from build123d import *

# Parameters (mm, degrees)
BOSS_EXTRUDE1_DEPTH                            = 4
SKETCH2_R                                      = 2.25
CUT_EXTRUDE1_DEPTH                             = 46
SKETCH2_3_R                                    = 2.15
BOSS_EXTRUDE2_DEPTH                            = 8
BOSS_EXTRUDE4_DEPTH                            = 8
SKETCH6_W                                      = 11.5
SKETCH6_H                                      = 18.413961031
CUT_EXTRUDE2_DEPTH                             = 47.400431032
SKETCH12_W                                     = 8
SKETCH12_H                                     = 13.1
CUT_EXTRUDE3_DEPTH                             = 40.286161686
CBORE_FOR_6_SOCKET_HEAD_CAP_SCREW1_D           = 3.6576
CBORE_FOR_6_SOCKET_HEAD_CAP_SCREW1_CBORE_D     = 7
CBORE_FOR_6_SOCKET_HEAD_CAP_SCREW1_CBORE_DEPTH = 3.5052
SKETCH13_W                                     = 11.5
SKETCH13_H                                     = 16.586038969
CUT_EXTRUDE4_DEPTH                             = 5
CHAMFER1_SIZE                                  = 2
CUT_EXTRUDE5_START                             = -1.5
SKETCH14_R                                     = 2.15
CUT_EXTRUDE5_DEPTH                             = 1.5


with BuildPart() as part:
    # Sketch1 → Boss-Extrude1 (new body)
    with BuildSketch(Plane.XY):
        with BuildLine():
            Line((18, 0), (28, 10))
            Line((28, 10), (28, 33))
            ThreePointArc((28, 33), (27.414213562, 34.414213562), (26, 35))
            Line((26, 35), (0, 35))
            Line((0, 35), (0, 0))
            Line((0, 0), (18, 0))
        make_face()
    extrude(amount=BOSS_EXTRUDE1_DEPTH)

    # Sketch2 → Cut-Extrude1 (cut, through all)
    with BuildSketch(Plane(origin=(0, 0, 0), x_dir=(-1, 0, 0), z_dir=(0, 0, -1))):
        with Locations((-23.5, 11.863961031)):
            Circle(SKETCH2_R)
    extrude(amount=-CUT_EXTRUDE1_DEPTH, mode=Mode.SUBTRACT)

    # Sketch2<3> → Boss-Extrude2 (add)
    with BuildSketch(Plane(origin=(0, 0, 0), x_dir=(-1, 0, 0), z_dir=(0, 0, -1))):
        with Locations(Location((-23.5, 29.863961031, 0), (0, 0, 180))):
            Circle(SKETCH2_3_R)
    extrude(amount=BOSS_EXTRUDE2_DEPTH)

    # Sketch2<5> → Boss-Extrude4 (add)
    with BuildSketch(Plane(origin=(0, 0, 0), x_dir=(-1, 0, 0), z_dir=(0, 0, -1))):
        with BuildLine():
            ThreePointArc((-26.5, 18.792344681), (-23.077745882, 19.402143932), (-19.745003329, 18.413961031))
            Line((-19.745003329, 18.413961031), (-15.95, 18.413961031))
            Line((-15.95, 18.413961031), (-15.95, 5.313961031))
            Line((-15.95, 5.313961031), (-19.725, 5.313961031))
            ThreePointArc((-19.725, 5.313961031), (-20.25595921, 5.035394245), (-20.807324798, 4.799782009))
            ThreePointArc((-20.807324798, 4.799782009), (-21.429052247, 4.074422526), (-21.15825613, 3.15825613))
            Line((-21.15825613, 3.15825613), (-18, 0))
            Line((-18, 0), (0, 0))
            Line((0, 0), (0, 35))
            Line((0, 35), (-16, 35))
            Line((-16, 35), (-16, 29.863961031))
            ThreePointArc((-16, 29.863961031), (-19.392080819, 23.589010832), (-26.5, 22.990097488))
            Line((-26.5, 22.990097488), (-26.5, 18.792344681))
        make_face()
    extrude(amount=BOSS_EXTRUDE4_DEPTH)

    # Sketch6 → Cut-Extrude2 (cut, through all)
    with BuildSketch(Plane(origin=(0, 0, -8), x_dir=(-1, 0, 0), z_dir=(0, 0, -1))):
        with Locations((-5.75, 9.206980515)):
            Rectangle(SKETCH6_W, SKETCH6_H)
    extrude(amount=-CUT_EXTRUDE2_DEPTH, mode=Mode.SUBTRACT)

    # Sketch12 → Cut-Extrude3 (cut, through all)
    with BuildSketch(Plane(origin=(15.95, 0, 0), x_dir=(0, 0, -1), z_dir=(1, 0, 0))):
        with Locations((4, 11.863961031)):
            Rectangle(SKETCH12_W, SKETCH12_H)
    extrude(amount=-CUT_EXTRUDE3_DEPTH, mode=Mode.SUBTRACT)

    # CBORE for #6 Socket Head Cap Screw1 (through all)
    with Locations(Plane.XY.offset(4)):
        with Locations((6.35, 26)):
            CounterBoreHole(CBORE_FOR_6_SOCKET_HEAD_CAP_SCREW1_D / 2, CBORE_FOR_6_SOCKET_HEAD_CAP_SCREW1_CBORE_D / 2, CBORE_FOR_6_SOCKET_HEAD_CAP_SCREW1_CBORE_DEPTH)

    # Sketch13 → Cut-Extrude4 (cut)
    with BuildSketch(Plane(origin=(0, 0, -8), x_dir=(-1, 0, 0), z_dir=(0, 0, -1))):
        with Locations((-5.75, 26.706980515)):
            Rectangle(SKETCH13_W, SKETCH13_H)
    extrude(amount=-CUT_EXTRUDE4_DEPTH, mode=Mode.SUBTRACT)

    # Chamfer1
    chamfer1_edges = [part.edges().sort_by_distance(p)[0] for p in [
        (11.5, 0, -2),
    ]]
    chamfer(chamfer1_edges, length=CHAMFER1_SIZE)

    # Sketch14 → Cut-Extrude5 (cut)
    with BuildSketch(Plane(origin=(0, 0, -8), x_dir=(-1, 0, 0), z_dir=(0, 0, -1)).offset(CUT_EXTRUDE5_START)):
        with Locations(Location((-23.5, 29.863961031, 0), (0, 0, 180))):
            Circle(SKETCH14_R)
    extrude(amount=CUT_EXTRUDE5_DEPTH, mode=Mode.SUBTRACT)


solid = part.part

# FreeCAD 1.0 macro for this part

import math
import FreeCAD as App
import Part
import Sketcher
Q = App.Units.Quantity


def edges_at(feature, points):
    """Names of the edges that pass closest to the given points."""
    edges = feature.Shape.Edges
    near = lambda p: min(range(len(edges)), key=lambda i: edges[i].distToShape(Part.Vertex(*p))[0])
    return sorted({f"Edge{near(p) + 1}" for p in points})


def add_polygon(sketch, points):
    """Adds a closed chain of lines whose ends are joined by coincident constraints."""
    first, n = sketch.GeometryCount, len(points)
    for a, b in zip(points, points[1:] + points[:1]):
        sketch.addGeometry(Part.LineSegment(App.Vector(*a, 0), App.Vector(*b, 0)), False)
    for i in range(n):
        sketch.addConstraint(Sketcher.Constraint("Coincident", first + i, 2, first + (i + 1) % n, 1))

doc = App.newDocument("Part")
body = doc.addObject("PartDesign::Body", "Body")

sketch1 = body.newObject("Sketcher::SketchObject", "Sketch")
sketch1.AttachmentSupport = (doc.getObject("XY_Plane"), [""])
sketch1.MapMode = "FlatFace"
sketch1.addGeometry(Part.LineSegment(App.Vector(18, 0, 0), App.Vector(28, 10, 0)), False)
sketch1.addGeometry(Part.LineSegment(App.Vector(28, 10, 0), App.Vector(28, 33, 0)), False)
sketch1.addGeometry(Part.ArcOfCircle(Part.Circle(App.Vector(26, 33, 0), App.Vector(0, 0, 1), 2), math.radians(0), math.radians(90)), False)
sketch1.addGeometry(Part.LineSegment(App.Vector(26, 35, 0), App.Vector(0, 35, 0)), False)
sketch1.addGeometry(Part.LineSegment(App.Vector(0, 35, 0), App.Vector(0, 0, 0)), False)
sketch1.addGeometry(Part.LineSegment(App.Vector(0, 0, 0), App.Vector(18, 0, 0)), False)
sketch1.addConstraint(Sketcher.Constraint("Coincident", 0, 2, 1, 1))
sketch1.addConstraint(Sketcher.Constraint("Tangent", 1, 2, 2, 1))
sketch1.addConstraint(Sketcher.Constraint("Tangent", 2, 2, 3, 1))
sketch1.addConstraint(Sketcher.Constraint("Coincident", 3, 2, 4, 1))
sketch1.addConstraint(Sketcher.Constraint("Coincident", 4, 2, 5, 1))
sketch1.addConstraint(Sketcher.Constraint("Coincident", 5, 2, 0, 1))
sketch1.addConstraint(Sketcher.Constraint("Vertical", 1))
sketch1.addConstraint(Sketcher.Constraint("Horizontal", 3))
sketch1.addConstraint(Sketcher.Constraint("Vertical", 4))
sketch1.addConstraint(Sketcher.Constraint("Horizontal", 5))
sketch1.addConstraint(Sketcher.Constraint("Coincident", 4, 2, -1, 1))
sketch1.addConstraint(Sketcher.Constraint("Radius", 2, Q("2 mm")))
sketch1.addConstraint(Sketcher.Constraint("DistanceX", 3, 2, 3, 1, Q("26 mm")))
sketch1.addConstraint(Sketcher.Constraint("DistanceX", 5, 1, 5, 2, Q("18 mm")))
sketch1.addConstraint(Sketcher.Constraint("DistanceY", 1, 1, 1, 2, Q("23 mm")))
sketch1.addConstraint(Sketcher.Constraint("DistanceY", 4, 2, 4, 1, Q("35 mm")))
pad1 = body.newObject("PartDesign::Pad", "Pad")
pad1.Profile = sketch1
pad1.Length = 4

sketch2 = body.newObject("Sketcher::SketchObject", "Sketch001")
sketch2.AttachmentSupport = (doc.getObject("XY_Plane"), [""])
sketch2.MapMode = "FlatFace"
sketch2.addGeometry(Part.Circle(App.Vector(23.5, 11.9, 0), App.Vector(0, 0, 1), 2.2), False)
sketch2.addConstraint(Sketcher.Constraint("Diameter", 0, Q("4.5 mm")))
sketch2.addConstraint(Sketcher.Constraint("DistanceX", -1, 1, 0, 3, Q("23.5 mm")))
sketch2.addConstraint(Sketcher.Constraint("DistanceY", -1, 1, 0, 3, Q("11.863961 mm")))
pocket1 = body.newObject("PartDesign::Pocket", "Pocket")
pocket1.Profile = sketch2
pocket1.Type = "ThroughAll"
pocket1.Reversed = True

sketch3 = body.newObject("Sketcher::SketchObject", "Sketch002")
sketch3.AttachmentSupport = (doc.getObject("XY_Plane"), [""])
sketch3.MapMode = "FlatFace"
sketch3.addGeometry(Part.Circle(App.Vector(23.5, 29.9, 0), App.Vector(0, 0, 1), 2.1), False)
sketch3.addConstraint(Sketcher.Constraint("Diameter", 0, Q("4.3 mm")))
sketch3.addConstraint(Sketcher.Constraint("DistanceX", -1, 1, 0, 3, Q("23.5 mm")))
sketch3.addConstraint(Sketcher.Constraint("DistanceY", -1, 1, 0, 3, Q("29.863961 mm")))
pad2 = body.newObject("PartDesign::Pad", "Pad001")
pad2.Profile = sketch3
pad2.Length = 8
pad2.Reversed = True

sketch4 = body.newObject("Sketcher::SketchObject", "Sketch003")
sketch4.AttachmentSupport = (doc.getObject("XY_Plane"), [""])
sketch4.MapMode = "FlatFace"
sketch4.addGeometry(Part.ArcOfCircle(Part.Circle(App.Vector(23.5, 11.9, 0), App.Vector(0, 0, 1), 7.6), math.radians(67), math.radians(120)), False)
sketch4.addGeometry(Part.LineSegment(App.Vector(19.7, 18.4, 0), App.Vector(15.9, 18.4, 0)), False)
sketch4.addGeometry(Part.LineSegment(App.Vector(15.9, 18.4, 0), App.Vector(15.9, 5.3, 0)), False)
sketch4.addGeometry(Part.LineSegment(App.Vector(15.9, 5.3, 0), App.Vector(19.7, 5.3, 0)), False)
sketch4.addGeometry(Part.ArcOfCircle(Part.Circle(App.Vector(23.5, 11.9, 0), App.Vector(0, 0, 1), 7.6), math.radians(-119.96), math.radians(-110.87)), False)
sketch4.addGeometry(Part.ArcOfCircle(Part.Circle(App.Vector(20.5, 3.9, 0), App.Vector(0, 0, 1), 1), math.radians(-45), math.radians(69)), False)
sketch4.addGeometry(Part.LineSegment(App.Vector(21.2, 3.2, 0), App.Vector(18, 0, 0)), False)
sketch4.addGeometry(Part.LineSegment(App.Vector(18, 0, 0), App.Vector(0, 0, 0)), False)
sketch4.addGeometry(Part.LineSegment(App.Vector(0, 0, 0), App.Vector(0, 35, 0)), False)
sketch4.addGeometry(Part.LineSegment(App.Vector(0, 35, 0), App.Vector(16, 35, 0)), False)
sketch4.addGeometry(Part.LineSegment(App.Vector(16, 35, 0), App.Vector(16, 29.9, 0)), False)
sketch4.addGeometry(Part.ArcOfCircle(Part.Circle(App.Vector(23.5, 29.9, 0), App.Vector(0, 0, 1), 7.5), math.radians(-180), math.radians(-66)), False)
sketch4.addGeometry(Part.LineSegment(App.Vector(26.5, 23, 0), App.Vector(26.5, 18.8, 0)), False)
sketch4.addConstraint(Sketcher.Constraint("Coincident", 0, 2, 1, 1))
sketch4.addConstraint(Sketcher.Constraint("Coincident", 1, 2, 2, 1))
sketch4.addConstraint(Sketcher.Constraint("Coincident", 2, 2, 3, 1))
sketch4.addConstraint(Sketcher.Constraint("Coincident", 3, 2, 4, 1))
sketch4.addConstraint(Sketcher.Constraint("Tangent", 4, 2, 5, 2))
sketch4.addConstraint(Sketcher.Constraint("Tangent", 5, 1, 6, 1))
sketch4.addConstraint(Sketcher.Constraint("Coincident", 6, 2, 7, 1))
sketch4.addConstraint(Sketcher.Constraint("Coincident", 7, 2, 8, 1))
sketch4.addConstraint(Sketcher.Constraint("Coincident", 8, 2, 9, 1))
sketch4.addConstraint(Sketcher.Constraint("Coincident", 9, 2, 10, 1))
sketch4.addConstraint(Sketcher.Constraint("Tangent", 10, 2, 11, 1))
sketch4.addConstraint(Sketcher.Constraint("Coincident", 11, 2, 12, 1))
sketch4.addConstraint(Sketcher.Constraint("Coincident", 12, 2, 0, 1))
sketch4.addConstraint(Sketcher.Constraint("Horizontal", 1))
sketch4.addConstraint(Sketcher.Constraint("Vertical", 2))
sketch4.addConstraint(Sketcher.Constraint("Horizontal", 3))
sketch4.addConstraint(Sketcher.Constraint("Horizontal", 7))
sketch4.addConstraint(Sketcher.Constraint("Vertical", 8))
sketch4.addConstraint(Sketcher.Constraint("Horizontal", 9))
sketch4.addConstraint(Sketcher.Constraint("Vertical", 10))
sketch4.addConstraint(Sketcher.Constraint("Vertical", 12))
sketch4.addConstraint(Sketcher.Constraint("Coincident", 7, 2, -1, 1))
sketch4.addConstraint(Sketcher.Constraint("Coincident", 4, 3, 0, 3))
sketch4.addConstraint(Sketcher.Constraint("Vertical", 4, 3, 11, 3))
sketch4.addConstraint(Sketcher.Constraint("Radius", 5, Q("1 mm")))
sketch4.addConstraint(Sketcher.Constraint("Radius", 11, Q("7.5 mm")))
sketch4.addConstraint(Sketcher.Constraint("DistanceX", 7, 2, 7, 1, Q("18 mm")))
sketch4.addConstraint(Sketcher.Constraint("DistanceX", 9, 1, 9, 2, Q("16 mm")))
sketch4.addConstraint(Sketcher.Constraint("DistanceY", 8, 1, 8, 2, Q("35 mm")))
sketch4.addConstraint(Sketcher.Constraint("Angle", 6, Q("-135 deg")))
sketch4.addConstraint(Sketcher.Constraint("Radius", 0, Q("7.55 mm")))
sketch4.addConstraint(Sketcher.Constraint("DistanceY", 2, 2, 2, 1, Q("13.1 mm")))
sketch4.addConstraint(Sketcher.Constraint("DistanceY", 4, 3, 11, 3, Q("18 mm")))
sketch4.addConstraint(Sketcher.Constraint("DistanceX", 11, 3, 11, 2, Q("3 mm")))
sketch4.addConstraint(Sketcher.Constraint("DistanceX", 3, 1, 3, 2, Q("3.775 mm")))
sketch4.addConstraint(Sketcher.Constraint("DistanceX", -1, 1, 1, 2, Q("15.95 mm")))
sketch4.addConstraint(Sketcher.Constraint("Radius", 4, Q("7.559969 mm")))
sketch4.addConstraint(Sketcher.Constraint("DistanceY", 10, 2, 10, 1, Q("5.136039 mm")))
pad3 = body.newObject("PartDesign::Pad", "Pad002")
pad3.Profile = sketch4
pad3.Length = 8
pad3.Reversed = True

sketch5 = body.newObject("Sketcher::SketchObject", "Sketch004")
sketch5.AttachmentSupport = (doc.getObject("XY_Plane"), [""])
sketch5.MapMode = "FlatFace"
sketch5.AttachmentOffset = App.Placement(App.Vector(0, 0, -8), App.Rotation())
add_polygon(sketch5, [(12, 18), (12, 0), (0, 0), (0, 18)])
sketch5.addConstraint(Sketcher.Constraint("Vertical", 0))
sketch5.addConstraint(Sketcher.Constraint("Horizontal", 1))
sketch5.addConstraint(Sketcher.Constraint("Vertical", 2))
sketch5.addConstraint(Sketcher.Constraint("Horizontal", 3))
sketch5.addConstraint(Sketcher.Constraint("Coincident", 1, 2, -1, 1))
sketch5.addConstraint(Sketcher.Constraint("DistanceX", 1, 2, 1, 1, Q("11.5 mm")))
sketch5.addConstraint(Sketcher.Constraint("DistanceY", 0, 2, 0, 1, Q("18.413961 mm")))
pocket2 = body.newObject("PartDesign::Pocket", "Pocket001")
pocket2.Profile = sketch5
pocket2.Type = "ThroughAll"
pocket2.Reversed = True

sketch6 = body.newObject("Sketcher::SketchObject", "Sketch005")
sketch6.AttachmentSupport = (doc.getObject("YZ_Plane"), [""])
sketch6.MapMode = "FlatFace"
sketch6.AttachmentOffset = App.Placement(App.Vector(0, 0, 15.95), App.Rotation())
add_polygon(sketch6, [(18, 0), (5, 0), (5, -8), (18, -8)])
sketch6.addConstraint(Sketcher.Constraint("Horizontal", 0))
sketch6.addConstraint(Sketcher.Constraint("Vertical", 1))
sketch6.addConstraint(Sketcher.Constraint("Horizontal", 2))
sketch6.addConstraint(Sketcher.Constraint("Vertical", 3))
sketch6.addConstraint(Sketcher.Constraint("PointOnObject", 0, 2, -1))
sketch6.addConstraint(Sketcher.Constraint("DistanceY", 1, 2, 1, 1, Q("8 mm")))
sketch6.addConstraint(Sketcher.Constraint("DistanceX", 0, 2, 0, 1, Q("13.1 mm")))
sketch6.addConstraint(Sketcher.Constraint("DistanceX", -1, 1, 0, 2, Q("5.313961 mm")))
pocket3 = body.newObject("PartDesign::Pocket", "Pocket002")
pocket3.Profile = sketch6
pocket3.Type = "ThroughAll"

sketch7 = body.newObject("Sketcher::SketchObject", "Sketch006")
sketch7.AttachmentSupport = (doc.getObject("XY_Plane"), [""])
sketch7.MapMode = "FlatFace"
sketch7.AttachmentOffset = App.Placement(App.Vector(0, 0, 4), App.Rotation())
sketch7.addGeometry(Part.Circle(App.Vector(6.3, 26, 0), App.Vector(0, 0, 1), 1.8), False)
sketch7.addConstraint(Sketcher.Constraint("DistanceY", -1, 1, 0, 3, Q("26 mm")))
sketch7.addConstraint(Sketcher.Constraint("Diameter", 0, Q("3.6576 mm")))
sketch7.addConstraint(Sketcher.Constraint("DistanceX", -1, 1, 0, 3, Q("6.35 mm")))
doc.recompute()
hole = body.newObject("PartDesign::Hole", "Hole")
hole.Profile = sketch7
hole.ThreadType = "None"
hole.Diameter = 3.6576
hole.DepthType = "ThroughAll"
hole.HoleCutType = "Counterbore"
hole.HoleCutDiameter = 7
hole.HoleCutDepth = 3.5052

sketch8 = body.newObject("Sketcher::SketchObject", "Sketch007")
sketch8.AttachmentSupport = (doc.getObject("XY_Plane"), [""])
sketch8.MapMode = "FlatFace"
sketch8.AttachmentOffset = App.Placement(App.Vector(0, 0, -8), App.Rotation())
add_polygon(sketch8, [(12, 35), (12, 18), (0, 18), (0, 35)])
sketch8.addConstraint(Sketcher.Constraint("Vertical", 0))
sketch8.addConstraint(Sketcher.Constraint("Horizontal", 1))
sketch8.addConstraint(Sketcher.Constraint("Vertical", 2))
sketch8.addConstraint(Sketcher.Constraint("Horizontal", 3))
sketch8.addConstraint(Sketcher.Constraint("PointOnObject", 1, 2, -2))
sketch8.addConstraint(Sketcher.Constraint("DistanceX", 1, 2, 1, 1, Q("11.5 mm")))
sketch8.addConstraint(Sketcher.Constraint("DistanceY", -1, 1, 2, 2, Q("35 mm")))
sketch8.addConstraint(Sketcher.Constraint("DistanceY", 0, 2, 0, 1, Q("16.586039 mm")))
pocket4 = body.newObject("PartDesign::Pocket", "Pocket003")
pocket4.Profile = sketch8
pocket4.Length = 5
pocket4.Reversed = True
doc.recompute()

chamfer = body.newObject("PartDesign::Chamfer", "Chamfer")
chamfer.Base = (pocket4, edges_at(pocket4, [(11.5, 0, -2)]))
chamfer.Size = 2

sketch9 = body.newObject("Sketcher::SketchObject", "Sketch008")
sketch9.AttachmentSupport = (doc.getObject("XY_Plane"), [""])
sketch9.MapMode = "FlatFace"
sketch9.AttachmentOffset = App.Placement(App.Vector(0, 0, -6.5), App.Rotation())
sketch9.addGeometry(Part.Circle(App.Vector(23.5, 29.9, 0), App.Vector(0, 0, 1), 2.1), False)
sketch9.addConstraint(Sketcher.Constraint("Diameter", 0, Q("4.3 mm")))
sketch9.addConstraint(Sketcher.Constraint("DistanceX", -1, 1, 0, 3, Q("23.5 mm")))
sketch9.addConstraint(Sketcher.Constraint("DistanceY", -1, 1, 0, 3, Q("29.863961 mm")))
pocket5 = body.newObject("PartDesign::Pocket", "Pocket004")
pocket5.Profile = sketch9
pocket5.Length = 1.5

doc.recompute()
